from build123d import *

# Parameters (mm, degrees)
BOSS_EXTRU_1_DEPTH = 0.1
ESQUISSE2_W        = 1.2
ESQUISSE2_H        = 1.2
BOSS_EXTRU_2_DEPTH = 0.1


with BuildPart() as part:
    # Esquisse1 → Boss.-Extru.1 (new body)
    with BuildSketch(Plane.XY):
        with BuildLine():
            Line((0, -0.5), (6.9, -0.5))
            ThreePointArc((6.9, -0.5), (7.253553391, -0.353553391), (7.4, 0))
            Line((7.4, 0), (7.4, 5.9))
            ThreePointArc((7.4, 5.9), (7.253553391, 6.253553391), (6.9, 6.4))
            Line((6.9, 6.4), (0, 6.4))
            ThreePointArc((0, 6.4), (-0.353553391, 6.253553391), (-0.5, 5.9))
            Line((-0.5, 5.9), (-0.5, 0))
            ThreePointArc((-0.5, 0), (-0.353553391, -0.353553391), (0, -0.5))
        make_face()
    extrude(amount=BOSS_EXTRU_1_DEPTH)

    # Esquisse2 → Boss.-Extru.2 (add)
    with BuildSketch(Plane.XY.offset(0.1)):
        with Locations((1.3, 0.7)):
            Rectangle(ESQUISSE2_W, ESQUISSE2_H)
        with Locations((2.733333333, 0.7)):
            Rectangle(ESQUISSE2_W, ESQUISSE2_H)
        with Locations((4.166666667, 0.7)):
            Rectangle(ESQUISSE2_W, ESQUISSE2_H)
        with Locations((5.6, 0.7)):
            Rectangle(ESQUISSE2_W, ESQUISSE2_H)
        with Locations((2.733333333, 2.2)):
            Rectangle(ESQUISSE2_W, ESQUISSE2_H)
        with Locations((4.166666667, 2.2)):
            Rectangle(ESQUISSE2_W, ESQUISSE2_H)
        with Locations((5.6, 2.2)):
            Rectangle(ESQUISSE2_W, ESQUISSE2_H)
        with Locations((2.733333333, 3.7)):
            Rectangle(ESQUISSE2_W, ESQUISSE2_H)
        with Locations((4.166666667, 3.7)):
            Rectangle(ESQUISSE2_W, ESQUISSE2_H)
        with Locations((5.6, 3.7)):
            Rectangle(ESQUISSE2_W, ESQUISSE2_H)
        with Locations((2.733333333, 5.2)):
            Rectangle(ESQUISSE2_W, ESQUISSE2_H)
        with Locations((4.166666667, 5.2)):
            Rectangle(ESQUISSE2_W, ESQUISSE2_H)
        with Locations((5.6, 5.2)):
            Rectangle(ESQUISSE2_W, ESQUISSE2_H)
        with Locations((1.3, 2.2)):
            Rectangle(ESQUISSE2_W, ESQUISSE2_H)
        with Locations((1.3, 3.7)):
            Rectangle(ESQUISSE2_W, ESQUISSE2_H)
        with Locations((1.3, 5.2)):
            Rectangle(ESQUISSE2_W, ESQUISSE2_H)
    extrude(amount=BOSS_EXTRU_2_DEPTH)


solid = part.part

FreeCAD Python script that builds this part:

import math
import FreeCAD as App
import Part
import Sketcher

V = App.Vector
Q = App.Units.Quantity


def add_polygon(sketch, points):
    """Adds a closed chain of lines whose ends are joined by coincident constraints."""
    first, n = sketch.GeometryCount, len(points)
    for a, b in zip(points, points[1:] + points[:1]):
        sketch.addGeometry(Part.LineSegment(App.Vector(*a, 0), App.Vector(*b, 0)), False)
    for i in range(n):
        sketch.addConstraint(Sketcher.Constraint("Coincident", first + i, 2, first + (i + 1) % n, 1))

doc = App.newDocument("Part")
body = doc.addObject("PartDesign::Body", "Body")

sketch1 = doc.addObject("Sketcher::SketchObject", "Sketch")
body.addObject(sketch1)
sketch1.AttachmentSupport = (doc.XY_Plane, [""])
sketch1.MapMode = "FlatFace"
sketch1.addGeometry([
    Part.LineSegment(V(0, -0.5, 0), V(6.9, -0.5, 0)),
    Part.ArcOfCircle(Part.Circle(V(6.9, 0, 0), V(0, 0, 1), 0.5), math.radians(-90), math.radians(0)),
    Part.LineSegment(V(7.4, 0, 0), V(7.4, 5.9, 0)),
    Part.ArcOfCircle(Part.Circle(V(6.9, 5.9, 0), V(0, 0, 1), 0.5), math.radians(0), math.radians(90)),
    Part.LineSegment(V(6.9, 6.4, 0), V(0, 6.4, 0)),
    Part.ArcOfCircle(Part.Circle(V(0, 5.9, 0), V(0, 0, 1), 0.5), math.radians(90), math.radians(180)),
    Part.LineSegment(V(-0.5, 5.9, 0), V(-0.5, 0, 0)),
    Part.ArcOfCircle(Part.Circle(V(0, 0, 0), V(0, 0, 1), 0.5), math.radians(180), math.radians(270)),
], False)
sketch1.addConstraint([
    Sketcher.Constraint("Tangent", 0, 2, 1, 1),
    Sketcher.Constraint("Tangent", 1, 2, 2, 1),
    Sketcher.Constraint("Tangent", 2, 2, 3, 1),
    Sketcher.Constraint("Tangent", 3, 2, 4, 1),
    Sketcher.Constraint("Tangent", 4, 2, 5, 1),
    Sketcher.Constraint("Tangent", 5, 2, 6, 1),
    Sketcher.Constraint("Tangent", 6, 2, 7, 1),
    Sketcher.Constraint("Tangent", 7, 2, 0, 1),
    Sketcher.Constraint("Horizontal", 0),
    Sketcher.Constraint("Vertical", 2),
    Sketcher.Constraint("Horizontal", 4),
    Sketcher.Constraint("Vertical", 6),
    Sketcher.Constraint("Coincident", 7, 3, -1, 1),
    Sketcher.Constraint("Equal", 1, 3),
    Sketcher.Constraint("Equal", 3, 5),
    Sketcher.Constraint("Equal", 5, 7),
    Sketcher.Constraint("Radius", 1, Q("0.5 mm")),
    Sketcher.Constraint("DistanceX", 0, 1, 0, 2, Q("6.9 mm")),
    Sketcher.Constraint("DistanceY", 2, 1, 2, 2, Q("5.9 mm")),
])
pad1 = doc.addObject("PartDesign::Pad", "Pad")
body.addObject(pad1)
pad1.Profile = sketch1
pad1.Length = 0.1

sketch2 = doc.addObject("Sketcher::SketchObject", "Sketch001")
body.addObject(sketch2)
sketch2.AttachmentSupport = (doc.XY_Plane, [""])
sketch2.MapMode = "FlatFace"
sketch2.AttachmentOffset = App.Placement(V(0, 0, 0.1), App.Rotation())
add_polygon(sketch2, [(0.7, 1.3), (0.7, 0.1), (1.9, 0.1), (1.9, 1.3)])
add_polygon(sketch2, [(2.133333, 1.3), (2.133333, 0.1), (3.333333, 0.1), (3.333333, 1.3)])
add_polygon(sketch2, [(3.566667, 1.3), (3.566667, 0.1), (4.766667, 0.1), (4.766667, 1.3)])
add_polygon(sketch2, [(5, 1.3), (5, 0.1), (6.2, 0.1), (6.2, 1.3)])
add_polygon(sketch2, [(2.133333, 2.8), (2.133333, 1.6), (3.333333, 1.6), (3.333333, 2.8)])
add_polygon(sketch2, [(3.566667, 2.8), (3.566667, 1.6), (4.766667, 1.6), (4.766667, 2.8)])
add_polygon(sketch2, [(5, 2.8), (5, 1.6), (6.2, 1.6), (6.2, 2.8)])
add_polygon(sketch2, [(2.133333, 4.3), (2.133333, 3.1), (3.333333, 3.1), (3.333333, 4.3)])
add_polygon(sketch2, [(3.566667, 4.3), (3.566667, 3.1), (4.766667, 3.1), (4.766667, 4.3)])
add_polygon(sketch2, [(5, 4.3), (5, 3.1), (6.2, 3.1), (6.2, 4.3)])
add_polygon(sketch2, [(2.133333, 5.8), (2.133333, 4.6), (3.333333, 4.6), (3.333333, 5.8)])
add_polygon(sketch2, [(3.566667, 5.8), (3.566667, 4.6), (4.766667, 4.6), (4.766667, 5.8)])
add_polygon(sketch2, [(5, 5.8), (5, 4.6), (6.2, 4.6), (6.2, 5.8)])
add_polygon(sketch2, [(0.7, 2.8), (0.7, 1.6), (1.9, 1.6), (1.9, 2.8)])
add_polygon(sketch2, [(0.7, 4.3), (0.7, 3.1), (1.9, 3.1), (1.9, 4.3)])
add_polygon(sketch2, [(0.7, 5.8), (0.7, 4.6), (1.9, 4.6), (1.9, 5.8)])
sketch2.addConstraint([
    Sketcher.Constraint("Vertical", 0),
    Sketcher.Constraint("Horizontal", 1),
    Sketcher.Constraint("Vertical", 2),
    Sketcher.Constraint("Horizontal", 3),
    Sketcher.Constraint("Vertical", 4),
    Sketcher.Constraint("Horizontal", 5),
    Sketcher.Constraint("Vertical", 6),
    Sketcher.Constraint("Horizontal", 7),
    Sketcher.Constraint("Vertical", 8),
    Sketcher.Constraint("Horizontal", 9),
    Sketcher.Constraint("Vertical", 10),
    Sketcher.Constraint("Horizontal", 11),
    Sketcher.Constraint("Vertical", 12),
    Sketcher.Constraint("Horizontal", 13),
    Sketcher.Constraint("Vertical", 14),
    Sketcher.Constraint("Horizontal", 15),
    Sketcher.Constraint("Vertical", 16),
    Sketcher.Constraint("Horizontal", 17),
    Sketcher.Constraint("Vertical", 18),
    Sketcher.Constraint("Horizontal", 19),
    Sketcher.Constraint("Vertical", 20),
    Sketcher.Constraint("Horizontal", 21),
    Sketcher.Constraint("Vertical", 22),
    Sketcher.Constraint("Horizontal", 23),
    Sketcher.Constraint("Vertical", 24),
    Sketcher.Constraint("Horizontal", 25),
    Sketcher.Constraint("Vertical", 26),
    Sketcher.Constraint("Horizontal", 27),
    Sketcher.Constraint("Vertical", 28),
    Sketcher.Constraint("Horizontal", 29),
    Sketcher.Constraint("Vertical", 30),
    Sketcher.Constraint("Horizontal", 31),
    Sketcher.Constraint("Vertical", 32),
    Sketcher.Constraint("Horizontal", 33),
    Sketcher.Constraint("Vertical", 34),
    Sketcher.Constraint("Horizontal", 35),
    Sketcher.Constraint("Vertical", 36),
    Sketcher.Constraint("Horizontal", 37),
    Sketcher.Constraint("Vertical", 38),
    Sketcher.Constraint("Horizontal", 39),
    Sketcher.Constraint("Vertical", 40),
    Sketcher.Constraint("Horizontal", 41),
    Sketcher.Constraint("Vertical", 42),
    Sketcher.Constraint("Horizontal", 43),
    Sketcher.Constraint("Vertical", 44),
    Sketcher.Constraint("Horizontal", 45),
    Sketcher.Constraint("Vertical", 46),
    Sketcher.Constraint("Horizontal", 47),
    Sketcher.Constraint("Vertical", 48),
    Sketcher.Constraint("Horizontal", 49),
    Sketcher.Constraint("Vertical", 50),
    Sketcher.Constraint("Horizontal", 51),
    Sketcher.Constraint("Vertical", 52),
    Sketcher.Constraint("Horizontal", 53),
    Sketcher.Constraint("Vertical", 54),
    Sketcher.Constraint("Horizontal", 55),
    Sketcher.Constraint("Vertical", 56),
    Sketcher.Constraint("Horizontal", 57),
    Sketcher.Constraint("Vertical", 58),
    Sketcher.Constraint("Horizontal", 59),
    Sketcher.Constraint("Vertical", 60),
    Sketcher.Constraint("Horizontal", 61),
    Sketcher.Constraint("Vertical", 62),
    Sketcher.Constraint("Horizontal", 63),
    Sketcher.Constraint("Horizontal", 1, 2, 4, 2),
    Sketcher.Constraint("Horizontal", 3, 2, 6, 2),
    Sketcher.Constraint("Horizontal", 5, 2, 8, 2),
    Sketcher.Constraint("Horizontal", 7, 2, 10, 2),
    Sketcher.Constraint("Horizontal", 9, 2, 12, 2),
    Sketcher.Constraint("Horizontal", 11, 2, 14, 2),
    Sketcher.Constraint("Horizontal", 17, 2, 20, 2),
    Sketcher.Constraint("Horizontal", 19, 2, 22, 2),
    Sketcher.Constraint("Horizontal", 21, 2, 24, 2),
    Sketcher.Constraint("Horizontal", 23, 2, 26, 2),
    Sketcher.Constraint("Horizontal", 29, 2, 32, 2),
    Sketcher.Constraint("Horizontal", 31, 2, 34, 2),
    Sketcher.Constraint("Horizontal", 33, 2, 36, 2),
    Sketcher.Constraint("Horizontal", 35, 2, 38, 2),
    Sketcher.Constraint("Horizontal", 41, 2, 44, 2),
    Sketcher.Constraint("Horizontal", 43, 2, 46, 2),
    Sketcher.Constraint("Horizontal", 45, 2, 48, 2),
    Sketcher.Constraint("Horizontal", 47, 2, 50, 2),
    Sketcher.Constraint("Horizontal", 25, 2, 52, 2),
    Sketcher.Constraint("Horizontal", 27, 2, 54, 2),
    Sketcher.Constraint("Horizontal", 37, 2, 56, 2),
    Sketcher.Constraint("Horizontal", 39, 2, 58, 2),
    Sketcher.Constraint("Horizontal", 49, 2, 60, 2),
    Sketcher.Constraint("Horizontal", 51, 2, 62, 2),
    Sketcher.Constraint("Vertical", 7, 2, 16, 2),
    Sketcher.Constraint("Vertical", 6, 2, 17, 2),
    Sketcher.Constraint("Vertical", 11, 2, 20, 2),
    Sketcher.Constraint("Vertical", 10, 2, 21, 2),
    Sketcher.Constraint("Vertical", 15, 2, 24, 2),
    Sketcher.Constraint("Vertical", 14, 2, 25, 2),
    Sketcher.Constraint("Vertical", 19, 2, 28, 2),
    Sketcher.Constraint("Vertical", 18, 2, 29, 2),
    Sketcher.Constraint("Vertical", 23, 2, 32, 2),
    Sketcher.Constraint("Vertical", 22, 2, 33, 2),
    Sketcher.Constraint("Vertical", 27, 2, 36, 2),
    Sketcher.Constraint("Vertical", 26, 2, 37, 2),
    Sketcher.Constraint("Vertical", 31, 2, 40, 2),
    Sketcher.Constraint("Vertical", 30, 2, 41, 2),
    Sketcher.Constraint("Vertical", 35, 2, 44, 2),
    Sketcher.Constraint("Vertical", 34, 2, 45, 2),
    Sketcher.Constraint("Vertical", 39, 2, 48, 2),
    Sketcher.Constraint("Vertical", 38, 2, 49, 2),
    Sketcher.Constraint("Vertical", 3, 2, 52, 2),
    Sketcher.Constraint("Vertical", 2, 2, 53, 2),
    Sketcher.Constraint("Vertical", 55, 2, 56, 2),
    Sketcher.Constraint("Vertical", 54, 2, 57, 2),
    Sketcher.Constraint("Vertical", 59, 2, 60, 2),
    Sketcher.Constraint("Vertical", 58, 2, 61, 2),
    Sketcher.Constraint("Equal", 3, 5),
    Sketcher.Constraint("Equal", 7, 9),
    Sketcher.Constraint("Equal", 11, 13),
    Sketcher.Constraint("Equal", 63, 0),
    Sketcher.Constraint("Equal", 14, 16),
    Sketcher.Constraint("Equal", 26, 28),
    Sketcher.Constraint("Equal", 38, 40),
    Sketcher.Constraint("DistanceX", 1, 1, 1, 2, Q("1.2 mm")),
    Sketcher.Constraint("DistanceX", -1, 1, 12, 2, Q("5 mm")),
    Sketcher.Constraint("DistanceX", -1, 1, 0, 2, Q("0.7 mm")),
    Sketcher.Constraint("DistanceY", -1, 1, 0, 2, Q("0.1 mm")),
    Sketcher.Constraint("DistanceY", -1, 1, 16, 2, Q("1.6 mm")),
    Sketcher.Constraint("DistanceY", -1, 1, 28, 2, Q("3.1 mm")),
    Sketcher.Constraint("DistanceY", -1, 1, 40, 2, Q("4.6 mm")),
    Sketcher.Constraint("DistanceX", -1, 1, 4, 2, Q("2.133333 mm")),
    Sketcher.Constraint("DistanceX", -1, 1, 8, 2, Q("3.566667 mm")),
])
pad2 = doc.addObject("PartDesign::Pad", "Pad001")
body.addObject(pad2)
pad2.Profile = sketch2
pad2.Length = 0.1

doc.recompute()
